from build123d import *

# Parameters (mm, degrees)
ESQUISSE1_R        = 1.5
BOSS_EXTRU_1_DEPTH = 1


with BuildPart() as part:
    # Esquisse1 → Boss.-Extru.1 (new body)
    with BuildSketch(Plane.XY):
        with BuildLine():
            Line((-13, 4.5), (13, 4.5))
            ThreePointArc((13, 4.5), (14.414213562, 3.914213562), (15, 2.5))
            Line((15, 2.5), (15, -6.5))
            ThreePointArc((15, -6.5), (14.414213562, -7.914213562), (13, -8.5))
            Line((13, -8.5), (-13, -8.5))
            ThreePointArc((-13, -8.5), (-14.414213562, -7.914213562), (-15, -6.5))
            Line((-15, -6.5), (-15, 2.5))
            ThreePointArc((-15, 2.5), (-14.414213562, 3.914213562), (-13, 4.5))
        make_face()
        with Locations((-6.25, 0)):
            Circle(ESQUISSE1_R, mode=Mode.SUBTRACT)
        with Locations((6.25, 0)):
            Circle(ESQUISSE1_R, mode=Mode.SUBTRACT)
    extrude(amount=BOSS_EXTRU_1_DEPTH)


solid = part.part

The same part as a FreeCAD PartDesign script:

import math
import FreeCAD as App
import Part
import Sketcher
Q = App.Units.Quantity

doc = App.newDocument("Part")
body = doc.addObject("PartDesign::Body", "Body")

# Sketch on XY plane
sketch1 = body.newObject("Sketcher::SketchObject", "Sketch")
sketch1.AttachmentSupport = (doc.getObject("XY_Plane"), [""])
sketch1.MapMode = "FlatFace"
sketch1.addGeometry([
    Part.LineSegment(App.Vector(13, 4.5, 0), App.Vector(-13, 4.5, 0)),  # 0
    Part.ArcOfCircle(Part.Circle(App.Vector(-13, 2.5, 0), App.Vector(0, 0, 1), 2), math.radians(90), math.radians(180)),  # 1
    Part.LineSegment(App.Vector(-15, 2.5, 0), App.Vector(-15, -6.5, 0)),  # 2
    Part.ArcOfCircle(Part.Circle(App.Vector(-13, -6.5, 0), App.Vector(0, 0, 1), 2), math.radians(-180), math.radians(-90)),  # 3
    Part.LineSegment(App.Vector(-13, -8.5, 0), App.Vector(13, -8.5, 0)),  # 4
    Part.ArcOfCircle(Part.Circle(App.Vector(13, -6.5, 0), App.Vector(0, 0, 1), 2), math.radians(-90), math.radians(0)),  # 5
    Part.LineSegment(App.Vector(15, -6.5, 0), App.Vector(15, 2.5, 0)),  # 6
    Part.ArcOfCircle(Part.Circle(App.Vector(13, 2.5, 0), App.Vector(0, 0, 1), 2), math.radians(0), math.radians(90)),  # 7
    Part.Circle(App.Vector(6.25, 0, 0), App.Vector(0, 0, 1), 1.5),  # 8
    Part.Circle(App.Vector(-6.25, 0, 0), App.Vector(0, 0, 1), 1.5),  # 9
], False)
sketch1.addConstraint([
    Sketcher.Constraint("Tangent", 0, 2, 1, 1),
    Sketcher.Constraint("Tangent", 1, 2, 2, 1),
    Sketcher.Constraint("Tangent", 2, 2, 3, 1),
    Sketcher.Constraint("Tangent", 3, 2, 4, 1),
    Sketcher.Constraint("Tangent", 4, 2, 5, 1),
    Sketcher.Constraint("Tangent", 5, 2, 6, 1),
    Sketcher.Constraint("Tangent", 6, 2, 7, 1),
    Sketcher.Constraint("Tangent", 7, 2, 0, 1),
    Sketcher.Constraint("Horizontal", 0),
    Sketcher.Constraint("Vertical", 2),
    Sketcher.Constraint("Horizontal", 4),
    Sketcher.Constraint("Vertical", 6),
    Sketcher.Constraint("Equal", 1, 3),
    Sketcher.Constraint("Equal", 3, 5),
    Sketcher.Constraint("Equal", 5, 7),
    Sketcher.Constraint("Equal", 8, 9),
    Sketcher.Constraint("Symmetric", 8, 3, 9, 3, -1, 1),
    Sketcher.Constraint("PointOnObject", 8, 3, -1),
    Sketcher.Constraint("Diameter", 8, Q("3 mm")),
    Sketcher.Constraint("Radius", 1, Q("2 mm")),
    Sketcher.Constraint("DistanceX", 0, 2, 0, 1, Q("26 mm")),
    Sketcher.Constraint("DistanceY", 2, 2, 2, 1, Q("9 mm")),
    Sketcher.Constraint("DistanceX", 1, 3, -1, 1, Q("13 mm")),
    Sketcher.Constraint("DistanceY", -1, 1, 1, 3, Q("2.5 mm")),
    Sketcher.Constraint("DistanceX", 9, 3, 8, 3, Q("12.5 mm")),
])
pad1 = body.newObject("PartDesign::Pad", "Pad")
pad1.Profile = sketch1
pad1.Length = 1

doc.recompute()
